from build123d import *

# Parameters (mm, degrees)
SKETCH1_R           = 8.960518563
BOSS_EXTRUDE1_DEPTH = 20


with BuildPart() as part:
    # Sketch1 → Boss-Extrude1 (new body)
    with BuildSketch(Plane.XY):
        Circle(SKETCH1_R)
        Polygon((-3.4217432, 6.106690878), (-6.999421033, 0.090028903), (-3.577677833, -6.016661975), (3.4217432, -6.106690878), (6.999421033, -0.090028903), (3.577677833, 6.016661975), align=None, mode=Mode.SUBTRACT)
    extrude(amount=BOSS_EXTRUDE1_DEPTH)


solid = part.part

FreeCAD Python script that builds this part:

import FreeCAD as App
import Part
import Sketcher

V = App.Vector
Q = App.Units.Quantity


def add_polygon(sketch, points):
    """Adds a closed chain of lines whose ends are joined by coincident constraints."""
    first, n = sketch.GeometryCount, len(points)
    for a, b in zip(points, points[1:] + points[:1]):
        sketch.addGeometry(Part.LineSegment(App.Vector(*a, 0), App.Vector(*b, 0)), False)
    for i in range(n):
        sketch.addConstraint(Sketcher.Constraint("Coincident", first + i, 2, first + (i + 1) % n, 1))

doc = App.newDocument("Part")
body = doc.addObject("PartDesign::Body", "Body")

# Sketch on XY plane
sketch1 = body.newObject("Sketcher::SketchObject", "Sketch")
sketch1.AttachmentSupport = (doc.getObject("XY_Plane"), [""])
sketch1.MapMode = "FlatFace"
sketch1.addGeometry(Part.Circle(V(0, 0, 0), V(0, 0, 1), 9), False)  # 0
add_polygon(sketch1, [(-7, 0), (-3, 6), (4, 6), (7, 0), (3, -6), (-4, -6)])  # lines 1-6
sketch1.addConstraint([
    Sketcher.Constraint("Coincident", 0, 3, -1, 1),
    Sketcher.Constraint("Symmetric", 1, 2, 4, 2, -1, 1),
    Sketcher.Constraint("Symmetric", 2, 2, 5, 2, -1, 1),
    Sketcher.Constraint("Symmetric", 3, 2, 6, 2, -1, 1),
    Sketcher.Constraint("Equal", 1, 2),
    Sketcher.Constraint("Equal", 2, 3),
    Sketcher.Constraint("Distance", 1, Q("7 mm")),
    Sketcher.Constraint("Diameter", 0, Q("17.921037 mm")),
    Sketcher.Constraint("DistanceX", 5, 2, 3, 2, Q("10.577099 mm")),
    Sketcher.Constraint("DistanceY", -1, 1, 1, 2, Q("6.106691 mm")),
    Sketcher.Constraint("DistanceY", -1, 1, 2, 2, Q("6.016662 mm")),
])
pad1 = body.newObject("PartDesign::Pad", "Pad")
pad1.Profile = sketch1
pad1.Length = 20

doc.recompute()
